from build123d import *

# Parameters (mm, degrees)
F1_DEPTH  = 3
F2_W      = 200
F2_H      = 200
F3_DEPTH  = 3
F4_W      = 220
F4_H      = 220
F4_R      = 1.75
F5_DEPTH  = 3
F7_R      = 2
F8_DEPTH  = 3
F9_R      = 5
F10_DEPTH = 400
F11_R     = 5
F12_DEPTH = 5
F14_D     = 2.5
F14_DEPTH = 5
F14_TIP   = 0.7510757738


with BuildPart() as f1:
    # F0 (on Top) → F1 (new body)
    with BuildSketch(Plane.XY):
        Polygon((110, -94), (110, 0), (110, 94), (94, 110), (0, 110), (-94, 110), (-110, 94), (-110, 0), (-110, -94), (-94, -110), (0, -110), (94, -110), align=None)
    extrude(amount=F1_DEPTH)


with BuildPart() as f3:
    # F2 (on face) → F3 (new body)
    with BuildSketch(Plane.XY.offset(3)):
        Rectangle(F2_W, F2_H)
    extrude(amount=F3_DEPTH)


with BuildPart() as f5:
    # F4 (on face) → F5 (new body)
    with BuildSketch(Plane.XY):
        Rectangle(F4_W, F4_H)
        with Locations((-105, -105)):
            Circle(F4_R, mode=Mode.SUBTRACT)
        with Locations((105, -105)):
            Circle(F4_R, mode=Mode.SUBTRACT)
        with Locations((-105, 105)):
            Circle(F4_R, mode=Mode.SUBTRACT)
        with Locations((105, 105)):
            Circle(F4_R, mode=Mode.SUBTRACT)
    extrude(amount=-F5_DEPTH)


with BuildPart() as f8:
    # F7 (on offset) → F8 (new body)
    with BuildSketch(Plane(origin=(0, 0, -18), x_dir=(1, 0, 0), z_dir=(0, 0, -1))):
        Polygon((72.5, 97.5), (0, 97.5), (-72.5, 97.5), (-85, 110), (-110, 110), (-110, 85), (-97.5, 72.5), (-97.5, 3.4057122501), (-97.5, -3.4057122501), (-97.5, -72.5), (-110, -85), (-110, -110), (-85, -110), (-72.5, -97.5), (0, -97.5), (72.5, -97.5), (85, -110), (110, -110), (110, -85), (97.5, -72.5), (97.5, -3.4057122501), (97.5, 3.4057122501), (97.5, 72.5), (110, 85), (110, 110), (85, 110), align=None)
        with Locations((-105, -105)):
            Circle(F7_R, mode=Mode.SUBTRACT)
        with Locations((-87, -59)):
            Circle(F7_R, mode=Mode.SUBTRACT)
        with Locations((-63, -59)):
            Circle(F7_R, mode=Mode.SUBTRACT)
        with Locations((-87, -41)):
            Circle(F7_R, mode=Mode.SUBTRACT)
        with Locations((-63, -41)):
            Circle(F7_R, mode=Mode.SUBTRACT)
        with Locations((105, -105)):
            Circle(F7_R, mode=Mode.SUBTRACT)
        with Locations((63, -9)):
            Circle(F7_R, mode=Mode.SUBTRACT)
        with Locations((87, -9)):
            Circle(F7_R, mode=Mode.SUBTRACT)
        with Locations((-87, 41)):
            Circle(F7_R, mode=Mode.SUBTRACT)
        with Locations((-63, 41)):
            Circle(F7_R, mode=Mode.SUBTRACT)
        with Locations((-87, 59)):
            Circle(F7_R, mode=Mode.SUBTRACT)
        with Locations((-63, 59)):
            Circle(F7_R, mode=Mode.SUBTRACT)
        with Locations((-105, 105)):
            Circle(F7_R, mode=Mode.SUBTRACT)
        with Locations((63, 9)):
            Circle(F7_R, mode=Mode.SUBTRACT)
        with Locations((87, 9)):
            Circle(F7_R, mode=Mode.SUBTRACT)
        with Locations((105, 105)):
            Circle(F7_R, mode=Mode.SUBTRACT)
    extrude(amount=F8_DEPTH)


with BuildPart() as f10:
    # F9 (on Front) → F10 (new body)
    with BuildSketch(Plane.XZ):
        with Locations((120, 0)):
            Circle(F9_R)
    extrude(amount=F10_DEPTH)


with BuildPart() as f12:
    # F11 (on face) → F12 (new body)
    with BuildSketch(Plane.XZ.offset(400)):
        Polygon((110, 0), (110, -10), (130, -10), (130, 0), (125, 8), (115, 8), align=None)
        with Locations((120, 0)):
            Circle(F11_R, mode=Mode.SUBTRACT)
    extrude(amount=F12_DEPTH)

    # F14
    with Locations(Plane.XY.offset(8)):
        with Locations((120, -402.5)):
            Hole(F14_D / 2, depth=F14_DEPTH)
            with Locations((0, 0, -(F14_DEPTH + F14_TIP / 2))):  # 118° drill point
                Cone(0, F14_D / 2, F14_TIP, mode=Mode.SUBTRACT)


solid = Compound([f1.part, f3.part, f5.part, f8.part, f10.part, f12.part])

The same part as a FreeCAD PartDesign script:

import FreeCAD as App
import Part
import Sketcher

V = App.Vector
Q = App.Units.Quantity

doc = App.newDocument("Part")
params = doc.addObject("Spreadsheet::Sheet", "Params")
for row, (alias, value) in enumerate([
    ("sketch1_width", "188 mm"),
    ("pad1_length", "3 mm"),
    ("sketch2_width", "200 mm"),
    ("pad2_length", "3 mm"),
    ("sketch3_diameter", "3.5 mm"),
    ("sketch3_width", "220 mm"),
    ("pad3_length", "3 mm"),
    ("sketch4_diameter", "4 mm"),
    ("sketch4_width", "145 mm"),
    ("sketch4_width2", "25 mm"),
    ("pad4_length", "3 mm"),
    ("sketch5_diameter", "10 mm"),
    ("pad5_length", "400 mm"),
    ("sketch6_diameter", "10 mm"),
    ("sketch6_width", "20 mm"),
    ("sketch6_width2", "10 mm"),
    ("pad6_length", "5 mm"),
    ("sketch7_diameter", "2.5 mm"),
    ("hole_diameter", "2.5 mm"),
    ("hole_depth", "5 mm"),
], start=1):
    params.set(f"A{row}", alias)
    params.set(f"B{row}", "=" + value)
    params.setAlias(f"B{row}", alias)

body = doc.addObject("PartDesign::Body", "Body")

# Sketch on XY plane
sketch1 = doc.addObject("Sketcher::SketchObject", "Sketch")
body.addObject(sketch1)
sketch1.AttachmentSupport = (doc.XY_Plane, [""])
sketch1.MapMode = "FlatFace"
sketch1.addGeometry(Part.LineSegment(V(110, -94, 0), V(110, 94, 0)), False)
sketch1.addGeometry(Part.LineSegment(V(110, 94, 0), V(94, 110, 0)), False)
sketch1.addGeometry(Part.LineSegment(V(94, 110, 0), V(-94, 110, 0)), False)
sketch1.addGeometry(Part.LineSegment(V(-94, 110, 0), V(-110, 94, 0)), False)
sketch1.addGeometry(Part.LineSegment(V(-110, 94, 0), V(-110, -94, 0)), False)
sketch1.addGeometry(Part.LineSegment(V(-110, -94, 0), V(-94, -110, 0)), False)
sketch1.addGeometry(Part.LineSegment(V(-94, -110, 0), V(94, -110, 0)), False)
sketch1.addGeometry(Part.LineSegment(V(94, -110, 0), V(110, -94, 0)), False)
sketch1.addConstraint(Sketcher.Constraint("Coincident", 0, 2, 1, 1))
sketch1.addConstraint(Sketcher.Constraint("Coincident", 1, 2, 2, 1))
sketch1.addConstraint(Sketcher.Constraint("Coincident", 2, 2, 3, 1))
sketch1.addConstraint(Sketcher.Constraint("Coincident", 3, 2, 4, 1))
sketch1.addConstraint(Sketcher.Constraint("Coincident", 4, 2, 5, 1))
sketch1.addConstraint(Sketcher.Constraint("Coincident", 5, 2, 6, 1))
sketch1.addConstraint(Sketcher.Constraint("Coincident", 6, 2, 7, 1))
sketch1.addConstraint(Sketcher.Constraint("Coincident", 7, 2, 0, 1))
sketch1.addConstraint(Sketcher.Constraint("Vertical", 0))
sketch1.addConstraint(Sketcher.Constraint("Horizontal", 2))
sketch1.addConstraint(Sketcher.Constraint("Vertical", 4))
sketch1.addConstraint(Sketcher.Constraint("Horizontal", 6))
sketch1.addConstraint(Sketcher.Constraint("Symmetric", 0, 2, 4, 2, -1, 1))
sketch1.addConstraint(Sketcher.Constraint("Symmetric", 1, 2, 5, 2, -1, 1))
sketch1.addConstraint(Sketcher.Constraint("Perpendicular", 1, 3))
sketch1.addConstraint(Sketcher.Constraint("Perpendicular", 5, 7))
sketch1.addConstraint(Sketcher.Constraint("Horizontal", 0, 2, 3, 2))
sketch1.addConstraint(Sketcher.Constraint("Horizontal", 4, 2, 7, 2))
sketch1.addConstraint(Sketcher.Constraint("Vertical", 2, 2, 5, 2))
sketch1.addConstraint(Sketcher.Constraint("Equal", 6, 0))
sketch1.addConstraint(Sketcher.Constraint("DistanceX", 2, 2, 2, 1, Q("188 mm")))
sketch1.addConstraint(Sketcher.Constraint("DistanceX", -1, 1, 0, 2, Q("110 mm")))
sketch1.setExpression("Constraints[20]", "Params.sketch1_width")
pad1 = doc.addObject("PartDesign::Pad", "Pad")
body.addObject(pad1)
pad1.Profile = sketch1
pad1.setExpression("Length", "Params.pad1_length")
body2 = doc.addObject("PartDesign::Body", "Body001")

# Sketch on XY plane
sketch2 = doc.addObject("Sketcher::SketchObject", "Sketch001")
body2.addObject(sketch2)
sketch2.AttachmentSupport = (doc.getObject("XY_Plane001"), [""])
sketch2.MapMode = "FlatFace"
sketch2.AttachmentOffset = App.Placement(V(0, 0, 3), App.Rotation())
sketch2.addGeometry(Part.LineSegment(V(-100, 100, 0), V(-100, -100, 0)), False)
sketch2.addGeometry(Part.LineSegment(V(-100, -100, 0), V(100, -100, 0)), False)
sketch2.addGeometry(Part.LineSegment(V(100, -100, 0), V(100, 100, 0)), False)
sketch2.addGeometry(Part.LineSegment(V(100, 100, 0), V(-100, 100, 0)), False)
sketch2.addConstraint(Sketcher.Constraint("Coincident", 0, 2, 1, 1))
sketch2.addConstraint(Sketcher.Constraint("Coincident", 1, 2, 2, 1))
sketch2.addConstraint(Sketcher.Constraint("Coincident", 2, 2, 3, 1))
sketch2.addConstraint(Sketcher.Constraint("Coincident", 3, 2, 0, 1))
sketch2.addConstraint(Sketcher.Constraint("Vertical", 0))
sketch2.addConstraint(Sketcher.Constraint("Horizontal", 1))
sketch2.addConstraint(Sketcher.Constraint("Vertical", 2))
sketch2.addConstraint(Sketcher.Constraint("Horizontal", 3))
sketch2.addConstraint(Sketcher.Constraint("Symmetric", 0, 2, 2, 2, -1, 1))
sketch2.addConstraint(Sketcher.Constraint("Equal", 3, 0))
sketch2.addConstraint(Sketcher.Constraint("DistanceX", 1, 1, 1, 2, Q("200 mm")))
sketch2.setExpression("Constraints[10]", "Params.sketch2_width")
pad2 = doc.addObject("PartDesign::Pad", "Pad001")
body2.addObject(pad2)
pad2.Profile = sketch2
pad2.setExpression("Length", "Params.pad2_length")
body3 = doc.addObject("PartDesign::Body", "Body002")

# Sketch on XY plane
sketch3 = doc.addObject("Sketcher::SketchObject", "Sketch002")
body3.addObject(sketch3)
sketch3.AttachmentSupport = (doc.getObject("XY_Plane002"), [""])
sketch3.MapMode = "FlatFace"
sketch3.addGeometry(Part.LineSegment(V(-110, 110, 0), V(-110, -110, 0)), False)
sketch3.addGeometry(Part.LineSegment(V(-110, -110, 0), V(110, -110, 0)), False)
sketch3.addGeometry(Part.LineSegment(V(110, -110, 0), V(110, 110, 0)), False)
sketch3.addGeometry(Part.LineSegment(V(110, 110, 0), V(-110, 110, 0)), False)
sketch3.addGeometry(Part.Circle(V(-105, -105, 0), V(0, 0, 1), 1.75), False)
sketch3.addGeometry(Part.Circle(V(105, -105, 0), V(0, 0, 1), 1.75), False)
sketch3.addGeometry(Part.Circle(V(-105, 105, 0), V(0, 0, 1), 1.75), False)
sketch3.addGeometry(Part.Circle(V(105, 105, 0), V(0, 0, 1), 1.75), False)
sketch3.addConstraint(Sketcher.Constraint("Coincident", 0, 2, 1, 1))
sketch3.addConstraint(Sketcher.Constraint("Coincident", 1, 2, 2, 1))
sketch3.addConstraint(Sketcher.Constraint("Coincident", 2, 2, 3, 1))
sketch3.addConstraint(Sketcher.Constraint("Coincident", 3, 2, 0, 1))
sketch3.addConstraint(Sketcher.Constraint("Vertical", 0))
sketch3.addConstraint(Sketcher.Constraint("Horizontal", 1))
sketch3.addConstraint(Sketcher.Constraint("Vertical", 2))
sketch3.addConstraint(Sketcher.Constraint("Horizontal", 3))
sketch3.addConstraint(Sketcher.Constraint("Equal", 4, 5))
sketch3.addConstraint(Sketcher.Constraint("Equal", 5, 6))
sketch3.addConstraint(Sketcher.Constraint("Equal", 6, 7))
sketch3.addConstraint(Sketcher.Constraint("Symmetric", 5, 3, 6, 3, -1, 1))
sketch3.addConstraint(Sketcher.Constraint("Symmetric", 4, 3, 7, 3, -1, 1))
sketch3.addConstraint(Sketcher.Constraint("Symmetric", 0, 2, 2, 2, -1, 1))
sketch3.addConstraint(Sketcher.Constraint("Symmetric", 4, 3, 5, 3, -2))
sketch3.addConstraint(Sketcher.Constraint("Equal", 3, 0))
sketch3.addConstraint(Sketcher.Constraint("Diameter", 4, Q("3.5 mm")))
sketch3.addConstraint(Sketcher.Constraint("DistanceX", 1, 1, 1, 2, Q("220 mm")))
sketch3.addConstraint(Sketcher.Constraint("DistanceX", 4, 3, -1, 1, Q("105 mm")))
sketch3.addConstraint(Sketcher.Constraint("DistanceY", 4, 3, -1, 1, Q("105 mm")))
sketch3.setExpression("Constraints[16]", "Params.sketch3_diameter")
sketch3.setExpression("Constraints[17]", "Params.sketch3_width")
pad3 = doc.addObject("PartDesign::Pad", "Pad002")
body3.addObject(pad3)
pad3.Profile = sketch3
pad3.setExpression("Length", "Params.pad3_length")
pad3.Reversed = True
body4 = doc.addObject("PartDesign::Body", "Body003")

# Sketch on XY plane
sketch4 = doc.addObject("Sketcher::SketchObject", "Sketch003")
body4.addObject(sketch4)
sketch4.AttachmentSupport = (doc.getObject("XY_Plane003"), [""])
sketch4.MapMode = "FlatFace"
sketch4.AttachmentOffset = App.Placement(V(0, 0, -18), App.Rotation())
sketch4.addGeometry(Part.LineSegment(V(72.5, -97.5, 0), V(-72.5, -97.5, 0)), False)
sketch4.addGeometry(Part.LineSegment(V(-72.5, -97.5, 0), V(-85, -110, 0)), False)
sketch4.addGeometry(Part.LineSegment(V(-85, -110, 0), V(-110, -110, 0)), False)
sketch4.addGeometry(Part.LineSegment(V(-110, -110, 0), V(-110, -85, 0)), False)
sketch4.addGeometry(Part.LineSegment(V(-110, -85, 0), V(-97.5, -72.5, 0)), False)
sketch4.addGeometry(Part.LineSegment(V(-97.5, -72.5, 0), V(-97.5, 72.5, 0)), False)
sketch4.addGeometry(Part.LineSegment(V(-97.5, 72.5, 0), V(-110, 85, 0)), False)
sketch4.addGeometry(Part.LineSegment(V(-110, 85, 0), V(-110, 110, 0)), False)
sketch4.addGeometry(Part.LineSegment(V(-110, 110, 0), V(-85, 110, 0)), False)
sketch4.addGeometry(Part.LineSegment(V(-85, 110, 0), V(-72.5, 97.5, 0)), False)
sketch4.addGeometry(Part.LineSegment(V(-72.5, 97.5, 0), V(72.5, 97.5, 0)), False)
sketch4.addGeometry(Part.LineSegment(V(72.5, 97.5, 0), V(85, 110, 0)), False)
sketch4.addGeometry(Part.LineSegment(V(85, 110, 0), V(110, 110, 0)), False)
sketch4.addGeometry(Part.LineSegment(V(110, 110, 0), V(110, 85, 0)), False)
sketch4.addGeometry(Part.LineSegment(V(110, 85, 0), V(97.5, 72.5, 0)), False)
sketch4.addGeometry(Part.LineSegment(V(97.5, 72.5, 0), V(97.5, -72.5, 0)), False)
sketch4.addGeometry(Part.LineSegment(V(97.5, -72.5, 0), V(110, -85, 0)), False)
sketch4.addGeometry(Part.LineSegment(V(110, -85, 0), V(110, -110, 0)), False)
sketch4.addGeometry(Part.LineSegment(V(110, -110, 0), V(85, -110, 0)), False)
sketch4.addGeometry(Part.LineSegment(V(85, -110, 0), V(72.5, -97.5, 0)), False)
sketch4.addGeometry(Part.Circle(V(-105, 105, 0), V(0, 0, 1), 2), False)
sketch4.addGeometry(Part.Circle(V(-87, 59, 0), V(0, 0, 1), 2), False)
sketch4.addGeometry(Part.Circle(V(-63, 59, 0), V(0, 0, 1), 2), False)
sketch4.addGeometry(Part.Circle(V(-87, 41, 0), V(0, 0, 1), 2), False)
sketch4.addGeometry(Part.Circle(V(-63, 41, 0), V(0, 0, 1), 2), False)
sketch4.addGeometry(Part.Circle(V(105, 105, 0), V(0, 0, 1), 2), False)
sketch4.addGeometry(Part.Circle(V(63, 9, 0), V(0, 0, 1), 2), False)
sketch4.addGeometry(Part.Circle(V(87, 9, 0), V(0, 0, 1), 2), False)
sketch4.addGeometry(Part.Circle(V(-87, -41, 0), V(0, 0, 1), 2), False)
sketch4.addGeometry(Part.Circle(V(-63, -41, 0), V(0, 0, 1), 2), False)
sketch4.addGeometry(Part.Circle(V(-87, -59, 0), V(0, 0, 1), 2), False)
sketch4.addGeometry(Part.Circle(V(-63, -59, 0), V(0, 0, 1), 2), False)
sketch4.addGeometry(Part.Circle(V(-105, -105, 0), V(0, 0, 1), 2), False)
sketch4.addGeometry(Part.Circle(V(63, -9, 0), V(0, 0, 1), 2), False)
sketch4.addGeometry(Part.Circle(V(87, -9, 0), V(0, 0, 1), 2), False)
sketch4.addGeometry(Part.Circle(V(105, -105, 0), V(0, 0, 1), 2), False)
sketch4.addConstraint(Sketcher.Constraint("Coincident", 0, 2, 1, 1))
sketch4.addConstraint(Sketcher.Constraint("Coincident", 1, 2, 2, 1))
sketch4.addConstraint(Sketcher.Constraint("Coincident", 2, 2, 3, 1))
sketch4.addConstraint(Sketcher.Constraint("Coincident", 3, 2, 4, 1))
sketch4.addConstraint(Sketcher.Constraint("Coincident", 4, 2, 5, 1))
sketch4.addConstraint(Sketcher.Constraint("Coincident", 5, 2, 6, 1))
sketch4.addConstraint(Sketcher.Constraint("Coincident", 6, 2, 7, 1))
sketch4.addConstraint(Sketcher.Constraint("Coincident", 7, 2, 8, 1))
sketch4.addConstraint(Sketcher.Constraint("Coincident", 8, 2, 9, 1))
sketch4.addConstraint(Sketcher.Constraint("Coincident", 9, 2, 10, 1))
sketch4.addConstraint(Sketcher.Constraint("Coincident", 10, 2, 11, 1))
sketch4.addConstraint(Sketcher.Constraint("Coincident", 11, 2, 12, 1))
sketch4.addConstraint(Sketcher.Constraint("Coincident", 12, 2, 13, 1))
sketch4.addConstraint(Sketcher.Constraint("Coincident", 13, 2, 14, 1))
sketch4.addConstraint(Sketcher.Constraint("Coincident", 14, 2, 15, 1))
sketch4.addConstraint(Sketcher.Constraint("Coincident", 15, 2, 16, 1))
sketch4.addConstraint(Sketcher.Constraint("Coincident", 16, 2, 17, 1))
sketch4.addConstraint(Sketcher.Constraint("Coincident", 17, 2, 18, 1))
sketch4.addConstraint(Sketcher.Constraint("Coincident", 18, 2, 19, 1))
sketch4.addConstraint(Sketcher.Constraint("Coincident", 19, 2, 0, 1))
sketch4.addConstraint(Sketcher.Constraint("Horizontal", 0))
sketch4.addConstraint(Sketcher.Constraint("Horizontal", 2))
sketch4.addConstraint(Sketcher.Constraint("Vertical", 3))
sketch4.addConstraint(Sketcher.Constraint("Vertical", 5))
sketch4.addConstraint(Sketcher.Constraint("Vertical", 7))
sketch4.addConstraint(Sketcher.Constraint("Horizontal", 8))
sketch4.addConstraint(Sketcher.Constraint("Horizontal", 10))
sketch4.addConstraint(Sketcher.Constraint("Horizontal", 12))
sketch4.addConstraint(Sketcher.Constraint("Vertical", 13))
sketch4.addConstraint(Sketcher.Constraint("Vertical", 15))
sketch4.addConstraint(Sketcher.Constraint("Vertical", 17))
sketch4.addConstraint(Sketcher.Constraint("Horizontal", 18))
sketch4.addConstraint(Sketcher.Constraint("Equal", 20, 21))
sketch4.addConstraint(Sketcher.Constraint("Equal", 21, 22))
sketch4.addConstraint(Sketcher.Constraint("Equal", 22, 23))
sketch4.addConstraint(Sketcher.Constraint("Equal", 23, 24))
sketch4.addConstraint(Sketcher.Constraint("Equal", 24, 25))
sketch4.addConstraint(Sketcher.Constraint("Equal", 25, 26))
sketch4.addConstraint(Sketcher.Constraint("Equal", 26, 27))
sketch4.addConstraint(Sketcher.Constraint("Equal", 27, 28))
sketch4.addConstraint(Sketcher.Constraint("Equal", 28, 29))
sketch4.addConstraint(Sketcher.Constraint("Equal", 29, 30))
sketch4.addConstraint(Sketcher.Constraint("Equal", 30, 31))
sketch4.addConstraint(Sketcher.Constraint("Equal", 31, 32))
sketch4.addConstraint(Sketcher.Constraint("Equal", 32, 33))
sketch4.addConstraint(Sketcher.Constraint("Equal", 33, 34))
sketch4.addConstraint(Sketcher.Constraint("Equal", 34, 35))
sketch4.addConstraint(Sketcher.Constraint("Symmetric", 25, 3, 32, 3, -1, 1))
sketch4.addConstraint(Sketcher.Constraint("Symmetric", 20, 3, 35, 3, -1, 1))
sketch4.addConstraint(Sketcher.Constraint("Symmetric", 0, 2, 10, 2, -1, 1))
sketch4.addConstraint(Sketcher.Constraint("Symmetric", 1, 2, 11, 2, -1, 1))
sketch4.addConstraint(Sketcher.Constraint("Symmetric", 3, 2, 13, 2, -1, 1))
sketch4.addConstraint(Sketcher.Constraint("Symmetric", 4, 2, 14, 2, -1, 1))
sketch4.addConstraint(Sketcher.Constraint("Symmetric", 6, 2, 16, 2, -1, 1))
sketch4.addConstraint(Sketcher.Constraint("Symmetric", 8, 2, 18, 2, -1, 1))
sketch4.addConstraint(Sketcher.Constraint("Symmetric", 20, 3, 25, 3, -2))
sketch4.addConstraint(Sketcher.Constraint("Symmetric", 8, 2, 11, 2, -2))
sketch4.addConstraint(Sketcher.Constraint("Symmetric", 6, 2, 13, 2, -2))
sketch4.addConstraint(Sketcher.Constraint("Symmetric", 23, 3, 28, 3, -1))
sketch4.addConstraint(Sketcher.Constraint("Symmetric", 24, 3, 29, 3, -1))
sketch4.addConstraint(Sketcher.Constraint("Symmetric", 21, 3, 30, 3, -1))
sketch4.addConstraint(Sketcher.Constraint("Symmetric", 22, 3, 31, 3, -1))
sketch4.addConstraint(Sketcher.Constraint("Symmetric", 26, 3, 33, 3, -1))
sketch4.addConstraint(Sketcher.Constraint("Symmetric", 27, 3, 34, 3, -1))
sketch4.addConstraint(Sketcher.Constraint("Parallel", 1, 4))
sketch4.addConstraint(Sketcher.Constraint("Perpendicular", 4, 6))
sketch4.addConstraint(Sketcher.Constraint("Parallel", 6, 9))
sketch4.addConstraint(Sketcher.Constraint("Perpendicular", 14, 16))
sketch4.addConstraint(Sketcher.Constraint("Parallel", 16, 19))
sketch4.addConstraint(Sketcher.Constraint("Horizontal", 21, 3, 22, 3))
sketch4.addConstraint(Sketcher.Constraint("Horizontal", 23, 3, 24, 3))
sketch4.addConstraint(Sketcher.Constraint("Horizontal", 26, 3, 27, 3))
sketch4.addConstraint(Sketcher.Constraint("Horizontal", 5, 2, 14, 2))
sketch4.addConstraint(Sketcher.Constraint("Vertical", 21, 3, 23, 3))
sketch4.addConstraint(Sketcher.Constraint("Vertical", 22, 3, 24, 3))
sketch4.addConstraint(Sketcher.Constraint("Equal", 18, 3))
sketch4.addConstraint(Sketcher.Constraint("Equal", 10, 5))
sketch4.addConstraint(Sketcher.Constraint("Equal", 1, 4))
sketch4.addConstraint(Sketcher.Constraint("Diameter", 20, Q("4 mm")))
sketch4.addConstraint(Sketcher.Constraint("DistanceX", 0, 2, 0, 1, Q("145 mm")))
sketch4.addConstraint(Sketcher.Constraint("DistanceX", 2, 2, 2, 1, Q("25 mm")))
sketch4.addConstraint(Sketcher.Constraint("DistanceX", 20, 3, -1, 1, Q("105 mm")))
sketch4.addConstraint(Sketcher.Constraint("DistanceY", -1, 1, 20, 3, Q("105 mm")))
sketch4.addConstraint(Sketcher.Constraint("DistanceX", 21, 3, -1, 1, Q("87 mm")))
sketch4.addConstraint(Sketcher.Constraint("DistanceY", -1, 1, 21, 3, Q("59 mm")))
sketch4.addConstraint(Sketcher.Constraint("DistanceX", 22, 3, -1, 1, Q("63 mm")))
sketch4.addConstraint(Sketcher.Constraint("DistanceY", -1, 1, 23, 3, Q("41 mm")))
sketch4.addConstraint(Sketcher.Constraint("DistanceX", -1, 1, 26, 3, Q("63 mm")))
sketch4.addConstraint(Sketcher.Constraint("DistanceY", -1, 1, 26, 3, Q("9 mm")))
sketch4.addConstraint(Sketcher.Constraint("DistanceX", -1, 1, 27, 3, Q("87 mm")))
sketch4.addConstraint(Sketcher.Constraint("DistanceX", 1, 2, -1, 1, Q("85 mm")))
sketch4.setExpression("Constraints[78]", "Params.sketch4_diameter")
sketch4.setExpression("Constraints[79]", "Params.sketch4_width")
sketch4.setExpression("Constraints[80]", "Params.sketch4_width2")
pad4 = doc.addObject("PartDesign::Pad", "Pad003")
body4.addObject(pad4)
pad4.Profile = sketch4
pad4.setExpression("Length", "Params.pad4_length")
pad4.Reversed = True
body5 = doc.addObject("PartDesign::Body", "Body004")

# Sketch on XZ plane
sketch5 = doc.addObject("Sketcher::SketchObject", "Sketch004")
body5.addObject(sketch5)
sketch5.AttachmentSupport = (doc.getObject("XZ_Plane004"), [""])
sketch5.MapMode = "FlatFace"
sketch5.addGeometry(Part.Circle(V(120, 0, 0), V(0, 0, 1), 5), False)
sketch5.addConstraint(Sketcher.Constraint("PointOnObject", 0, 3, -1))
sketch5.addConstraint(Sketcher.Constraint("Diameter", 0, Q("10 mm")))
sketch5.addConstraint(Sketcher.Constraint("DistanceX", -1, 1, 0, 3, Q("120 mm")))
sketch5.setExpression("Constraints[1]", "Params.sketch5_diameter")
pad5 = doc.addObject("PartDesign::Pad", "Pad004")
body5.addObject(pad5)
pad5.Profile = sketch5
pad5.setExpression("Length", "Params.pad5_length")
body6 = doc.addObject("PartDesign::Body", "Body005")

# Sketch on XZ plane
sketch6 = doc.addObject("Sketcher::SketchObject", "Sketch005")
body6.addObject(sketch6)
sketch6.AttachmentSupport = (doc.getObject("XZ_Plane005"), [""])
sketch6.MapMode = "FlatFace"
sketch6.AttachmentOffset = App.Placement(V(0, 0, 400), App.Rotation())
sketch6.addGeometry(Part.LineSegment(V(110, 0, 0), V(110, -10, 0)), False)
sketch6.addGeometry(Part.LineSegment(V(110, -10, 0), V(130, -10, 0)), False)
sketch6.addGeometry(Part.LineSegment(V(130, -10, 0), V(130, 0, 0)), False)
sketch6.addGeometry(Part.LineSegment(V(130, 0, 0), V(125, 8, 0)), False)
sketch6.addGeometry(Part.LineSegment(V(125, 8, 0), V(115, 8, 0)), False)
sketch6.addGeometry(Part.LineSegment(V(115, 8, 0), V(110, 0, 0)), False)
sketch6.addGeometry(Part.Circle(V(120, 0, 0), V(0, 0, 1), 5), False)
sketch6.addConstraint(Sketcher.Constraint("Coincident", 0, 2, 1, 1))
sketch6.addConstraint(Sketcher.Constraint("Coincident", 1, 2, 2, 1))
sketch6.addConstraint(Sketcher.Constraint("Coincident", 2, 2, 3, 1))
sketch6.addConstraint(Sketcher.Constraint("Coincident", 3, 2, 4, 1))
sketch6.addConstraint(Sketcher.Constraint("Coincident", 4, 2, 5, 1))
sketch6.addConstraint(Sketcher.Constraint("Coincident", 5, 2, 0, 1))
sketch6.addConstraint(Sketcher.Constraint("Vertical", 0))
sketch6.addConstraint(Sketcher.Constraint("Horizontal", 1))
sketch6.addConstraint(Sketcher.Constraint("Vertical", 2))
sketch6.addConstraint(Sketcher.Constraint("Horizontal", 4))
sketch6.addConstraint(Sketcher.Constraint("PointOnObject", 6, 3, -1))
sketch6.addConstraint(Sketcher.Constraint("PointOnObject", 2, 2, -1))
sketch6.addConstraint(Sketcher.Constraint("PointOnObject", 5, 2, -1))
sketch6.addConstraint(Sketcher.Constraint("Equal", 4, 0))
sketch6.addConstraint(Sketcher.Constraint("Equal", 3, 5))
sketch6.addConstraint(Sketcher.Constraint("Diameter", 6, Q("10 mm")))
sketch6.addConstraint(Sketcher.Constraint("DistanceX", 1, 1, 1, 2, Q("20 mm")))
sketch6.addConstraint(Sketcher.Constraint("DistanceX", 4, 2, 4, 1, Q("10 mm")))
sketch6.addConstraint(Sketcher.Constraint("DistanceX", -1, 1, 6, 3, Q("120 mm")))
sketch6.addConstraint(Sketcher.Constraint("DistanceX", -1, 1, 0, 2, Q("110 mm")))
sketch6.addConstraint(Sketcher.Constraint("DistanceY", -1, 1, 3, 2, Q("8 mm")))
sketch6.setExpression("Constraints[15]", "Params.sketch6_diameter")
sketch6.setExpression("Constraints[16]", "Params.sketch6_width")
sketch6.setExpression("Constraints[17]", "Params.sketch6_width2")
pad6 = doc.addObject("PartDesign::Pad", "Pad005")
body6.addObject(pad6)
pad6.Profile = sketch6
pad6.setExpression("Length", "Params.pad6_length")

# Sketch on XY plane
sketch7 = doc.addObject("Sketcher::SketchObject", "Sketch006")
body6.addObject(sketch7)
sketch7.AttachmentSupport = (doc.getObject("XY_Plane005"), [""])
sketch7.MapMode = "FlatFace"
sketch7.AttachmentOffset = App.Placement(V(0, 0, 8), App.Rotation())
sketch7.addGeometry(Part.Circle(V(120, -402.5, 0), V(0, 0, 1), 1.25), False)
sketch7.addConstraint(Sketcher.Constraint("Diameter", 0, Q("2.5 mm")))
sketch7.addConstraint(Sketcher.Constraint("DistanceX", -1, 1, 0, 3, Q("120 mm")))
sketch7.addConstraint(Sketcher.Constraint("DistanceY", 0, 3, -1, 1, Q("402.5 mm")))
sketch7.setExpression("Constraints[0]", "Params.sketch7_diameter")
doc.recompute()
hole = doc.addObject("PartDesign::Hole", "Hole")
body6.addObject(hole)
hole.Profile = sketch7
hole.ThreadType = "None"
hole.setExpression("Diameter", "Params.hole_diameter")
hole.DepthType = "Dimension"
hole.setExpression("Depth", "Params.hole_depth")
hole.DrillPoint = "Angled"
hole.DrillPointAngle = 118

doc.recompute()
